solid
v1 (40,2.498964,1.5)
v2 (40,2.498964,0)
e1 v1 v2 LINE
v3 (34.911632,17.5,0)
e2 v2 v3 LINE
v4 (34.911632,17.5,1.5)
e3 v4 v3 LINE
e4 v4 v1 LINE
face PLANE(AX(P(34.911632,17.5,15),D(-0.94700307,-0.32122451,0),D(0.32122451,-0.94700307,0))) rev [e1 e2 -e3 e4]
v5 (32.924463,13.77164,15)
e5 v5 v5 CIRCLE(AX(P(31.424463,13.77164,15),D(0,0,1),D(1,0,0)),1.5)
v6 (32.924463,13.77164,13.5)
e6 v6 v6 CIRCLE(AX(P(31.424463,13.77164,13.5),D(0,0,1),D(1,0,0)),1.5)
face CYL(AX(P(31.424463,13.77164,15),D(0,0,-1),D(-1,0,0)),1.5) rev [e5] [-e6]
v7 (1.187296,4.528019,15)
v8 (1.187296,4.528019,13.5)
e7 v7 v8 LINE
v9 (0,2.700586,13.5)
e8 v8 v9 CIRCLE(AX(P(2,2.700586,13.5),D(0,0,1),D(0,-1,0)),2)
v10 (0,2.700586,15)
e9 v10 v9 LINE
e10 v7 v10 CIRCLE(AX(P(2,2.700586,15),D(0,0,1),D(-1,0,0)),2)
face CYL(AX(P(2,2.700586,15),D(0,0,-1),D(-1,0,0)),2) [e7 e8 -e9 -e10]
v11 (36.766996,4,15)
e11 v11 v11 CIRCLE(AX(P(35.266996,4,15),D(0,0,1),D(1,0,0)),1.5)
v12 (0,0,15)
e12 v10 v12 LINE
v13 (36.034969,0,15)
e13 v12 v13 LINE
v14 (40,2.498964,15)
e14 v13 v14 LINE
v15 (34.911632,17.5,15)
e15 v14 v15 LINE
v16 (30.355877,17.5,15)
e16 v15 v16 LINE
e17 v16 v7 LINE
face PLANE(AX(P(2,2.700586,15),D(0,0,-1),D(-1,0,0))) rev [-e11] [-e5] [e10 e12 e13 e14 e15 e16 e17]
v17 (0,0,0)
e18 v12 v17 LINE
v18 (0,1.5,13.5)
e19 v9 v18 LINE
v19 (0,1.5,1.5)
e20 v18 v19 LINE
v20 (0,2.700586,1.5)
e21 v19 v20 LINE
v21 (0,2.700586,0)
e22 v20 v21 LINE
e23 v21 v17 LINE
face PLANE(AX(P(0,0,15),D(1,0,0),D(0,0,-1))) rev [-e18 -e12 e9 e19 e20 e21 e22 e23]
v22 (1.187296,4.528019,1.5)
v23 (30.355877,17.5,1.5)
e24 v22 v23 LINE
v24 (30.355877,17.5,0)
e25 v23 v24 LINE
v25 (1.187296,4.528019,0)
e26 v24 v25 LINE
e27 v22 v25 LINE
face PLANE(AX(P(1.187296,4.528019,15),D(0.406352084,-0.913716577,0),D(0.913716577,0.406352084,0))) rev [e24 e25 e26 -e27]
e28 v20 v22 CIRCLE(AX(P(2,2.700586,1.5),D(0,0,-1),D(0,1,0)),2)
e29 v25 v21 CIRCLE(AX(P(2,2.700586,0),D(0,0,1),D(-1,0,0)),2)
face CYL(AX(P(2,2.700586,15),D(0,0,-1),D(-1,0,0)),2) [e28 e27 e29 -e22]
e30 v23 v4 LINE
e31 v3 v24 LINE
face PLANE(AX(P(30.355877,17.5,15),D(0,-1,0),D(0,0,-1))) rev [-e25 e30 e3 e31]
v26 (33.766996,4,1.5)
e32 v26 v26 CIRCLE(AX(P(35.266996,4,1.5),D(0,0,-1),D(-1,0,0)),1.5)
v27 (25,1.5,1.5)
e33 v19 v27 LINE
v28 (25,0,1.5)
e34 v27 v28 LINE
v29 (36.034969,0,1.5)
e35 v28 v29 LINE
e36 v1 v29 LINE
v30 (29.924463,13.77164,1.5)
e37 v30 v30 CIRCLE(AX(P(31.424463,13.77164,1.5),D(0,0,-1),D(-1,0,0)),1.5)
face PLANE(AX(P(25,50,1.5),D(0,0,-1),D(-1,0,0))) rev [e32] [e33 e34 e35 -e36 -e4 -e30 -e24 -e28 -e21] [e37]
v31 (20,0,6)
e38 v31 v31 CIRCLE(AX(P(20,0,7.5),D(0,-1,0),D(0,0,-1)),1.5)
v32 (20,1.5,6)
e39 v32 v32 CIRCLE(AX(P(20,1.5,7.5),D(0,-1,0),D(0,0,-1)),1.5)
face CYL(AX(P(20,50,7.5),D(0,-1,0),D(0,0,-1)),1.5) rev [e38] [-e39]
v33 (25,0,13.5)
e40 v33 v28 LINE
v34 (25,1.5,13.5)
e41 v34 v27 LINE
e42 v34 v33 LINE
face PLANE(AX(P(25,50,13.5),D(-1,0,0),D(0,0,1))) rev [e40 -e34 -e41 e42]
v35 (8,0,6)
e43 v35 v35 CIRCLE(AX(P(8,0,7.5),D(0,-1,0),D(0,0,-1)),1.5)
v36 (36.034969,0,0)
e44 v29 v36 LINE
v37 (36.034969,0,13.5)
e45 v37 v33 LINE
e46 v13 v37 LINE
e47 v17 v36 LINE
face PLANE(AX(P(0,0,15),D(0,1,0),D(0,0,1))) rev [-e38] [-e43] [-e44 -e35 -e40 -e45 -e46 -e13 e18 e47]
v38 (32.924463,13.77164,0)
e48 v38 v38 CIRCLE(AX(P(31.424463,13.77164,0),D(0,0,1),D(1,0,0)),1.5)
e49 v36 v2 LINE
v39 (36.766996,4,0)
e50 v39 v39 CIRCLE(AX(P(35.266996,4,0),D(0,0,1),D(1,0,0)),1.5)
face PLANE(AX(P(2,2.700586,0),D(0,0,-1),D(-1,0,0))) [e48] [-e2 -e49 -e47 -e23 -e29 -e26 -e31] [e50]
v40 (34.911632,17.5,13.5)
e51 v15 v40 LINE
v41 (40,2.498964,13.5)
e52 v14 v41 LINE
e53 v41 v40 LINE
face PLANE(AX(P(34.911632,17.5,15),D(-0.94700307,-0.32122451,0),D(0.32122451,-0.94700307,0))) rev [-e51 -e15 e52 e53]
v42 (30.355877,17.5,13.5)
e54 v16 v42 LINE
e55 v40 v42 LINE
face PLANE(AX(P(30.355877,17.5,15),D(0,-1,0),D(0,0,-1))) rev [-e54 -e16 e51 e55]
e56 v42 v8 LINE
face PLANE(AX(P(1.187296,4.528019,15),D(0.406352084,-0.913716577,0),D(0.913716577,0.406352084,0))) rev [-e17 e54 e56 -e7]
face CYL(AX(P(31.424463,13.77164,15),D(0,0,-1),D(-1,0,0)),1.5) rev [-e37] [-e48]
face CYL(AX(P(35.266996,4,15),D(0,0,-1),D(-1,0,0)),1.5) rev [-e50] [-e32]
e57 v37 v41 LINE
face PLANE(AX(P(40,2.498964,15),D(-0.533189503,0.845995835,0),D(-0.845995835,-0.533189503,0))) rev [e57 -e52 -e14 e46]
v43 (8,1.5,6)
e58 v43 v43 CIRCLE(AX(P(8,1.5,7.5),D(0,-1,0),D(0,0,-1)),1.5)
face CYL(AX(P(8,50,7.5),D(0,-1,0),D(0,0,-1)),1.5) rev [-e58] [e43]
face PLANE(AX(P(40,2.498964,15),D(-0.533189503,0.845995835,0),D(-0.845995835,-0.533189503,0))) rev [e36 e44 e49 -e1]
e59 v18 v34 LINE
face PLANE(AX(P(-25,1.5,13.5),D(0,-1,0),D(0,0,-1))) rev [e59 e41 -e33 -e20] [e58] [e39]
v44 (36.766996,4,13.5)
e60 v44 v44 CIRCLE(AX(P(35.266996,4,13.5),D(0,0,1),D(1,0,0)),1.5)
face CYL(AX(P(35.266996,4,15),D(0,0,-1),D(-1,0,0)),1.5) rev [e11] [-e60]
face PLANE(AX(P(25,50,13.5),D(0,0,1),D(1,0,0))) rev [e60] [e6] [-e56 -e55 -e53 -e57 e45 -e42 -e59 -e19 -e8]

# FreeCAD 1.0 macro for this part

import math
import FreeCAD as App
import Part
import Sketcher

V = App.Vector

doc = App.newDocument("Part")
body = doc.addObject("PartDesign::Body", "Body")

# Sketch on XY plane
sketch1 = body.newObject("Sketcher::SketchObject", "Sketch")
sketch1.AttachmentSupport = (doc.getObject("XY_Plane"), [""])
sketch1.MapMode = "FlatFace"
sketch1.addGeometry(Part.LineSegment(V(30.4, 17.5, 0), V(1.2, 4.5, 0)), False)
sketch1.addGeometry(Part.ArcOfCircle(Part.Circle(V(2, 2.7, 0), V(0, 0, 1), 2), math.radians(114), math.radians(180)), False)
sketch1.addGeometry(Part.LineSegment(V(0, 2.7, 0), V(0, 0, 0)), False)
sketch1.addGeometry(Part.LineSegment(V(0, 0, 0), V(36, 0, 0)), False)
sketch1.addGeometry(Part.LineSegment(V(36, 0, 0), V(40, 2.5, 0)), False)
sketch1.addGeometry(Part.LineSegment(V(40, 2.5, 0), V(34.9, 17.5, 0)), False)
sketch1.addGeometry(Part.LineSegment(V(34.9, 17.5, 0), V(30.4, 17.5, 0)), False)
sketch1.addGeometry(Part.Circle(V(35.3, 4, 0), V(0, 0, 1), 1.5), False)
sketch1.addGeometry(Part.Circle(V(31.4, 13.8, 0), V(0, 0, 1), 1.5), False)
sketch1.addConstraint(Sketcher.Constraint("Tangent", 0, 2, 1, 1))
sketch1.addConstraint(Sketcher.Constraint("Tangent", 1, 2, 2, 1))
sketch1.addConstraint(Sketcher.Constraint("Coincident", 2, 2, 3, 1))
sketch1.addConstraint(Sketcher.Constraint("Coincident", 3, 2, 4, 1))
sketch1.addConstraint(Sketcher.Constraint("Coincident", 4, 2, 5, 1))
sketch1.addConstraint(Sketcher.Constraint("Coincident", 5, 2, 6, 1))
sketch1.addConstraint(Sketcher.Constraint("Coincident", 6, 2, 0, 1))
sketch1.addConstraint(Sketcher.Constraint("Vertical", 2))
sketch1.addConstraint(Sketcher.Constraint("Horizontal", 3))
sketch1.addConstraint(Sketcher.Constraint("Horizontal", 6))
sketch1.addConstraint(Sketcher.Constraint("Coincident", 2, 2, -1, 1))
sketch1.addConstraint(Sketcher.Constraint("Equal", 7, 8))
sketch1.addConstraint(Sketcher.Constraint("Diameter", 7, 3.0))
sketch1.addConstraint(Sketcher.Constraint("Radius", 1, 2.0))
sketch1.addConstraint(Sketcher.Constraint("DistanceY", -1, 1, 7, 3, 4.0))
sketch1.addConstraint(Sketcher.Constraint("DistanceX", -1, 1, 4, 2, 40.0))
sketch1.addConstraint(Sketcher.Constraint("DistanceY", -1, 1, 5, 2, 17.5))
sketch1.addConstraint(Sketcher.Constraint("DistanceX", 3, 1, 3, 2, 36.034969))
sketch1.addConstraint(Sketcher.Constraint("DistanceX", 0, 2, 7, 3, 34.0797))
sketch1.addConstraint(Sketcher.Constraint("Distance", 4, 4.686822))
sketch1.addConstraint(Sketcher.Constraint("DistanceX", 6, 2, 6, 1, 4.555755))
sketch1.addConstraint(Sketcher.Constraint("DistanceY", 2, 2, 2, 1, 2.700586))
sketch1.addConstraint(Sketcher.Constraint("DistanceY", -1, 1, 8, 3, 13.77164))
sketch1.addConstraint(Sketcher.Constraint("DistanceY", -1, 1, 0, 2, 4.528019))
sketch1.addConstraint(Sketcher.Constraint("DistanceX", 8, 3, 5, 2, 3.487169))
pad1 = body.newObject("PartDesign::Pad", "Pad")
pad1.Profile = sketch1
pad1.Length = 15

# Sketch on XZ plane
sketch2 = body.newObject("Sketcher::SketchObject", "Sketch001")
sketch2.AttachmentSupport = (doc.getObject("XZ_Plane"), [""])
sketch2.MapMode = "FlatFace"
sketch2.addGeometry(Part.LineSegment(V(25, 14, 0), V(25, 2, 0)), False)
sketch2.addGeometry(Part.LineSegment(V(25, 2, 0), V(46, 2, 0)), False)
sketch2.addGeometry(Part.LineSegment(V(46, 2, 0), V(46, 14, 0)), False)
sketch2.addGeometry(Part.LineSegment(V(46, 14, 0), V(25, 14, 0)), False)
sketch2.addConstraint(Sketcher.Constraint("Coincident", 0, 2, 1, 1))
sketch2.addConstraint(Sketcher.Constraint("Coincident", 1, 2, 2, 1))
sketch2.addConstraint(Sketcher.Constraint("Coincident", 2, 2, 3, 1))
sketch2.addConstraint(Sketcher.Constraint("Coincident", 3, 2, 0, 1))
sketch2.addConstraint(Sketcher.Constraint("Vertical", 0))
sketch2.addConstraint(Sketcher.Constraint("Horizontal", 1))
sketch2.addConstraint(Sketcher.Constraint("Vertical", 2))
sketch2.addConstraint(Sketcher.Constraint("Horizontal", 3))
sketch2.addConstraint(Sketcher.Constraint("DistanceY", 0, 2, 0, 1, 12.0))
sketch2.addConstraint(Sketcher.Constraint("DistanceX", -1, 1, 0, 2, 25.0))
sketch2.addConstraint(Sketcher.Constraint("DistanceY", -1, 1, 0, 2, 1.5))
sketch2.addConstraint(Sketcher.Constraint("DistanceX", 1, 1, 1, 2, 21.498069))
pocket1 = body.newObject("PartDesign::Pocket", "Pocket")
pocket1.Profile = sketch2
pocket1.Length = 50

# Sketch on YZ plane
sketch3 = body.newObject("Sketcher::SketchObject", "Sketch002")
sketch3.AttachmentSupport = (doc.getObject("YZ_Plane"), [""])
sketch3.MapMode = "FlatFace"
sketch3.AttachmentOffset = App.Placement(V(0, 0, 25), App.Rotation())
sketch3.addGeometry(Part.LineSegment(V(18, 14, 0), V(2, 14, 0)), False)
sketch3.addGeometry(Part.LineSegment(V(2, 14, 0), V(2, 2, 0)), False)
sketch3.addGeometry(Part.LineSegment(V(2, 2, 0), V(18, 2, 0)), False)
sketch3.addGeometry(Part.LineSegment(V(18, 2, 0), V(18, 14, 0)), False)
sketch3.addConstraint(Sketcher.Constraint("Coincident", 0, 2, 1, 1))
sketch3.addConstraint(Sketcher.Constraint("Coincident", 1, 2, 2, 1))
sketch3.addConstraint(Sketcher.Constraint("Coincident", 2, 2, 3, 1))
sketch3.addConstraint(Sketcher.Constraint("Coincident", 3, 2, 0, 1))
sketch3.addConstraint(Sketcher.Constraint("Horizontal", 0))
sketch3.addConstraint(Sketcher.Constraint("Vertical", 1))
sketch3.addConstraint(Sketcher.Constraint("Horizontal", 2))
sketch3.addConstraint(Sketcher.Constraint("Vertical", 3))
sketch3.addConstraint(Sketcher.Constraint("DistanceX", 0, 2, 0, 1, 16.0))
sketch3.addConstraint(Sketcher.Constraint("DistanceY", 1, 2, 1, 1, 12.0))
sketch3.addConstraint(Sketcher.Constraint("DistanceX", -1, 1, 0, 2, 1.5))
sketch3.addConstraint(Sketcher.Constraint("DistanceY", -1, 1, 0, 2, 13.5))
pocket2 = body.newObject("PartDesign::Pocket", "Pocket001")
pocket2.Profile = sketch3
pocket2.Length = 50

# Sketch on XZ plane
sketch4 = body.newObject("Sketcher::SketchObject", "Sketch003")
sketch4.AttachmentSupport = (doc.getObject("XZ_Plane"), [""])
sketch4.MapMode = "FlatFace"
sketch4.addGeometry(Part.Circle(V(8, 7.5, 0), V(0, 0, 1), 1.5), False)
sketch4.addGeometry(Part.Circle(V(20, 7.5, 0), V(0, 0, 1), 1.5), False)
sketch4.addConstraint(Sketcher.Constraint("Equal", 0, 1))
sketch4.addConstraint(Sketcher.Constraint("Horizontal", 0, 3, 1, 3))
sketch4.addConstraint(Sketcher.Constraint("Diameter", 0, 3.0))
sketch4.addConstraint(Sketcher.Constraint("DistanceX", -1, 1, 0, 3, 8.0))
sketch4.addConstraint(Sketcher.Constraint("DistanceX", -1, 1, 1, 3, 20.0))
sketch4.addConstraint(Sketcher.Constraint("DistanceY", -1, 1, 0, 3, 7.5))
pocket3 = body.newObject("PartDesign::Pocket", "Pocket002")
pocket3.Profile = sketch4
pocket3.Length = 50

doc.recompute()
